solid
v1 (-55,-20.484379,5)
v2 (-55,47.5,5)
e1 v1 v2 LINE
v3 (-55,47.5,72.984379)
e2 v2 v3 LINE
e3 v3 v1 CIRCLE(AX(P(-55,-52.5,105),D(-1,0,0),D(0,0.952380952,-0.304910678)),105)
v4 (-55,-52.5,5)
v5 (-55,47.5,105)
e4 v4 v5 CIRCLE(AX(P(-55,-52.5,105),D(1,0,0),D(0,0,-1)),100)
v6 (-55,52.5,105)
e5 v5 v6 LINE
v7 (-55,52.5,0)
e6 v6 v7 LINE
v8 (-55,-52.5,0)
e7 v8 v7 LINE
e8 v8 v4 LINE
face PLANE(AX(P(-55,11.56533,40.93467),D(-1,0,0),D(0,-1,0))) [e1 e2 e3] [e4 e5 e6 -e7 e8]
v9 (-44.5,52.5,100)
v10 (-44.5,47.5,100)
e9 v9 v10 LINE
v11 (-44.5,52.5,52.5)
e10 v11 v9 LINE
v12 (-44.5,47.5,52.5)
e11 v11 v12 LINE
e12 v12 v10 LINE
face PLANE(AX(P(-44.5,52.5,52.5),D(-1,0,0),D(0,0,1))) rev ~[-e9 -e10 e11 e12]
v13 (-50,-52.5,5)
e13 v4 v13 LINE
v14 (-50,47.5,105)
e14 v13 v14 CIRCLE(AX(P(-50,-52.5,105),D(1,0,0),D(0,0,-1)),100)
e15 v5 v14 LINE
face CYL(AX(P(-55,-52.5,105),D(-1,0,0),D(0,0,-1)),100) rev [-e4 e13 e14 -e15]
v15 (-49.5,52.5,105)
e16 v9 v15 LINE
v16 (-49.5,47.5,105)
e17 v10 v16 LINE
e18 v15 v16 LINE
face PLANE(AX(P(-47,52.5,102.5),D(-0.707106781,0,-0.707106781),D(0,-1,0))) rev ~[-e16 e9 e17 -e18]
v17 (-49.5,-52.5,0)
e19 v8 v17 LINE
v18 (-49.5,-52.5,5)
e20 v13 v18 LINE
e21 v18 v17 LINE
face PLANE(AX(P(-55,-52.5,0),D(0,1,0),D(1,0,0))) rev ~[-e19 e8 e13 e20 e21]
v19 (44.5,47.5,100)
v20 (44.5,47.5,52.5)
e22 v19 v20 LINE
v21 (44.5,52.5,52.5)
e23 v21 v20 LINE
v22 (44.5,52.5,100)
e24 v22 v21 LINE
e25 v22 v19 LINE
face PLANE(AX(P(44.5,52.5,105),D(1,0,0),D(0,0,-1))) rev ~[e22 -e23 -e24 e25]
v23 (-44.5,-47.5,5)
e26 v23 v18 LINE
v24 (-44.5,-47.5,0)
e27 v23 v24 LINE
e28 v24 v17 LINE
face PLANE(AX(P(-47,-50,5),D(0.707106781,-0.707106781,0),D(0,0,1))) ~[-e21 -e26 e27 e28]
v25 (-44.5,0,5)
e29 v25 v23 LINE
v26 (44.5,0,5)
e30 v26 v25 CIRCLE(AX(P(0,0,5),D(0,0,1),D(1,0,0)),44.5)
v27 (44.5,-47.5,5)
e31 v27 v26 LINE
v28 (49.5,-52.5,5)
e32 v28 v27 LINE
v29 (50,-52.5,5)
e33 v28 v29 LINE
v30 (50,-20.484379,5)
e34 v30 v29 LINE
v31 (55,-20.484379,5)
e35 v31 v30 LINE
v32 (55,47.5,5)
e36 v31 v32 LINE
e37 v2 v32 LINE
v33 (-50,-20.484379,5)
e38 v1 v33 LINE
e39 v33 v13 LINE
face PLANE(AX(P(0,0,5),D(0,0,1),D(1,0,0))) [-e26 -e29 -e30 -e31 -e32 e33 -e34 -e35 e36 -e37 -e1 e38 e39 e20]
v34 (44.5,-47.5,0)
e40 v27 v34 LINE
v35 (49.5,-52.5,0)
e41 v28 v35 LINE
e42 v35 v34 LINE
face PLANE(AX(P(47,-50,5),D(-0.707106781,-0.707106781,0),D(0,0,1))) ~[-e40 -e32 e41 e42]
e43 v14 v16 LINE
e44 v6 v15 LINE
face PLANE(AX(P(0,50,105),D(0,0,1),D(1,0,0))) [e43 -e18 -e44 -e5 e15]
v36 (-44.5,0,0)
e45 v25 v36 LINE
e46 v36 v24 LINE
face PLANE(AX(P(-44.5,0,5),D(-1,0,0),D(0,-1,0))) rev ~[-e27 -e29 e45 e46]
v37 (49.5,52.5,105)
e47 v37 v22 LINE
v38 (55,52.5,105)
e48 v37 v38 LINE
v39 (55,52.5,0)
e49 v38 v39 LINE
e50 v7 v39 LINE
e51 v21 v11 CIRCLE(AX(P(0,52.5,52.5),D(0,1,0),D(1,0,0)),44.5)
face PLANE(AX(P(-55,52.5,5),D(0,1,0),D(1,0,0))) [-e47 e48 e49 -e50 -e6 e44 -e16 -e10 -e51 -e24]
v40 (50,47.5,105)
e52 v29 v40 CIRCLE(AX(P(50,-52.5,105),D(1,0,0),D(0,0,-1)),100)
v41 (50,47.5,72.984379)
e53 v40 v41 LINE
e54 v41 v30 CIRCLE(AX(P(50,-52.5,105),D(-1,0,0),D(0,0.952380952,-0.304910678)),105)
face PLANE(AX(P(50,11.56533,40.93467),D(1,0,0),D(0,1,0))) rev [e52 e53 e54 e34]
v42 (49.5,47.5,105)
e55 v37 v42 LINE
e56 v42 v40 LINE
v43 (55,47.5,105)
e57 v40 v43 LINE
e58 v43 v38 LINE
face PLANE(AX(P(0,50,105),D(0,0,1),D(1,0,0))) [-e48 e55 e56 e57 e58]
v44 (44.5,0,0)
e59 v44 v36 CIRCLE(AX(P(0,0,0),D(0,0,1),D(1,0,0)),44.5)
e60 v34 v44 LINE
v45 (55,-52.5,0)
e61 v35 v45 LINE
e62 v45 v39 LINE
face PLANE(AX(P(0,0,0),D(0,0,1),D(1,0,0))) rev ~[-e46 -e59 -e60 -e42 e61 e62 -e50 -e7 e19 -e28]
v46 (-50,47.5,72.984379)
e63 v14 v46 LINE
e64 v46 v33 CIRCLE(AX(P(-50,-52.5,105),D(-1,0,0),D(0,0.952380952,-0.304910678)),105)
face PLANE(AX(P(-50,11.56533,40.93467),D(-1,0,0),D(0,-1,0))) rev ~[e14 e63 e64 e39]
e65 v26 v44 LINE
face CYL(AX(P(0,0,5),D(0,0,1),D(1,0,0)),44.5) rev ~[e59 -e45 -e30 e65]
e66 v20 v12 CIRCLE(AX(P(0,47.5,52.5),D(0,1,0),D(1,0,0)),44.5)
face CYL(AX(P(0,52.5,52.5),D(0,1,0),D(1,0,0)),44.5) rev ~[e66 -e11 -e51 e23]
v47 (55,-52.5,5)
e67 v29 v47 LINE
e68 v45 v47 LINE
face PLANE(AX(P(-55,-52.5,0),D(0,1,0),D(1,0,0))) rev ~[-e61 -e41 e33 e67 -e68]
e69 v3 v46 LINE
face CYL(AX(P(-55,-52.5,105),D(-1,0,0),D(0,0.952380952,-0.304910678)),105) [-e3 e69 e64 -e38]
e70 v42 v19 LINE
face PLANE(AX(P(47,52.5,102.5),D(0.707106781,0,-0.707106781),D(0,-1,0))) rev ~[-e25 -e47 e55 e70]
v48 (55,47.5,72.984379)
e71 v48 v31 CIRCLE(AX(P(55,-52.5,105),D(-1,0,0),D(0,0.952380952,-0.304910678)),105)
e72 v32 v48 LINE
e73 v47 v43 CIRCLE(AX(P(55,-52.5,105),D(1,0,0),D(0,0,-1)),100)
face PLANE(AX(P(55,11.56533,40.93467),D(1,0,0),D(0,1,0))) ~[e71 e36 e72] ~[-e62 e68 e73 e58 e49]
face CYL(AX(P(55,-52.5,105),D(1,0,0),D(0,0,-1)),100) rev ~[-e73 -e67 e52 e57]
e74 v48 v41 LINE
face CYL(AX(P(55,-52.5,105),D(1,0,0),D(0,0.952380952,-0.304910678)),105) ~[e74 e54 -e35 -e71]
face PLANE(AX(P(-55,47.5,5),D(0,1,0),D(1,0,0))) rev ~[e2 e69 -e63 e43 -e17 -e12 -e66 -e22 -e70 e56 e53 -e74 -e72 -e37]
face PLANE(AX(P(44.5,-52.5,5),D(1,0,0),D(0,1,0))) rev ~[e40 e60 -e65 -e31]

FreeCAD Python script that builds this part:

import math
import FreeCAD as App
import Part
import Sketcher
Q = App.Units.Quantity


def edges_at(feature, points):
    """Names of the edges that pass closest to the given points."""
    edges = feature.Shape.Edges
    near = lambda p: min(range(len(edges)), key=lambda i: edges[i].distToShape(Part.Vertex(*p))[0])
    return sorted({f"Edge{near(p) + 1}" for p in points})

doc = App.newDocument("Part")
body = doc.addObject("PartDesign::Body", "Body")

# Sketch on XY plane
sketch1 = body.newObject("Sketcher::SketchObject", "Sketch")
sketch1.AttachmentSupport = (doc.getObject("XY_Plane"), [""])
sketch1.MapMode = "FlatFace"
sketch1.addGeometry([
    Part.LineSegment(App.Vector(-55, 52, 0), App.Vector(-55, -52, 0)),
    Part.LineSegment(App.Vector(-55, -52, 0), App.Vector(55, -52, 0)),
    Part.LineSegment(App.Vector(55, -52, 0), App.Vector(55, 52, 0)),
    Part.LineSegment(App.Vector(55, 52, 0), App.Vector(-55, 52, 0)),
], False)
sketch1.addConstraint([
    Sketcher.Constraint("Coincident", 0, 2, 1, 1),
    Sketcher.Constraint("Coincident", 1, 2, 2, 1),
    Sketcher.Constraint("Coincident", 2, 2, 3, 1),
    Sketcher.Constraint("Coincident", 3, 2, 0, 1),
    Sketcher.Constraint("Vertical", 0),
    Sketcher.Constraint("Horizontal", 1),
    Sketcher.Constraint("Vertical", 2),
    Sketcher.Constraint("Horizontal", 3),
    Sketcher.Constraint("Symmetric", 0, 2, 2, 2, -1, 1),
    Sketcher.Constraint("DistanceX", 1, 1, 1, 2, Q("110 mm")),
    Sketcher.Constraint("DistanceY", 0, 2, 0, 1, Q("105 mm")),
])
pad1 = body.newObject("PartDesign::Pad", "Pad")
pad1.Profile = sketch1
pad1.Length = 5

# Sketch on XY plane
sketch2 = body.newObject("Sketcher::SketchObject", "Sketch001")
sketch2.AttachmentSupport = (doc.getObject("XY_Plane"), [""])
sketch2.MapMode = "FlatFace"
sketch2.AttachmentOffset = App.Placement(App.Vector(0, 0, 5), App.Rotation())
sketch2.addGeometry([
    Part.LineSegment(App.Vector(-55, 52, 0), App.Vector(-55, 48, 0)),
    Part.LineSegment(App.Vector(-55, 48, 0), App.Vector(55, 48, 0)),
    Part.LineSegment(App.Vector(55, 48, 0), App.Vector(55, 52, 0)),
    Part.LineSegment(App.Vector(55, 52, 0), App.Vector(-55, 52, 0)),
], False)
sketch2.addConstraint([
    Sketcher.Constraint("Coincident", 0, 2, 1, 1),
    Sketcher.Constraint("Coincident", 1, 2, 2, 1),
    Sketcher.Constraint("Coincident", 2, 2, 3, 1),
    Sketcher.Constraint("Coincident", 3, 2, 0, 1),
    Sketcher.Constraint("Vertical", 0),
    Sketcher.Constraint("Horizontal", 1),
    Sketcher.Constraint("Vertical", 2),
    Sketcher.Constraint("Horizontal", 3),
    Sketcher.Constraint("DistanceX", 1, 1, 1, 2, Q("110 mm")),
    Sketcher.Constraint("DistanceY", 0, 2, 0, 1, Q("5 mm")),
    Sketcher.Constraint("DistanceX", 0, 2, -1, 1, Q("55 mm")),
    Sketcher.Constraint("DistanceY", -1, 1, 0, 2, Q("47.5 mm")),
])
pad2 = body.newObject("PartDesign::Pad", "Pad001")
pad2.Profile = sketch2
pad2.Length = 100

# Sketch on YZ plane
sketch3 = body.newObject("Sketcher::SketchObject", "Sketch002")
sketch3.AttachmentSupport = (doc.getObject("YZ_Plane"), [""])
sketch3.MapMode = "FlatFace"
sketch3.AttachmentOffset = App.Placement(App.Vector(0, 0, -55), App.Rotation())
sketch3.addGeometry([
    Part.ArcOfCircle(Part.Circle(App.Vector(-52, 105, 0), App.Vector(0, 0, 1), 100), math.radians(-90), math.radians(0)),
    Part.LineSegment(App.Vector(48, 105, 0), App.Vector(48, 73, 0)),
    Part.ArcOfCircle(Part.Circle(App.Vector(-52, 105, 0), App.Vector(0, 0, 1), 105), math.radians(-72), math.radians(-18)),
    Part.LineSegment(App.Vector(-20, 5, 0), App.Vector(-52, 5, 0)),
], False)
sketch3.addConstraint([
    Sketcher.Constraint("Tangent", 0, 2, 1, 1),
    Sketcher.Constraint("Coincident", 1, 2, 2, 2),
    Sketcher.Constraint("Coincident", 2, 1, 3, 1),
    Sketcher.Constraint("Tangent", 3, 2, 0, 1),
    Sketcher.Constraint("Vertical", 1),
    Sketcher.Constraint("Horizontal", 3),
    Sketcher.Constraint("Coincident", 2, 3, 0, 3),
    Sketcher.Constraint("Radius", 0, Q("100 mm")),
    Sketcher.Constraint("Radius", 2, Q("105 mm")),
    Sketcher.Constraint("DistanceY", -1, 1, 0, 3, Q("105 mm")),
    Sketcher.Constraint("DistanceX", 0, 3, -1, 1, Q("52.5 mm")),
])
pad3 = body.newObject("PartDesign::Pad", "Pad002")
pad3.Profile = sketch3
pad3.Length = 5
body2 = doc.addObject("PartDesign::Body", "Body001")
doc.recompute()

body2.BaseFeature = body
doc.recompute()

mirroring = doc.addObject("Part::Mirroring", "Mirroring")
mirroring.Source = body
mirroring.Base = App.Vector(0, 0, 0)
mirroring.Normal = App.Vector(1, 0, 0)
body3 = doc.addObject("PartDesign::Body", "Body002")
body3.BaseFeature = mirroring
boolean = body2.newObject("PartDesign::Boolean", "Boolean")
boolean.Type = "Fuse"
boolean.addObjects([body3])
doc.recompute()

# Sketch on XY plane
sketch4 = body2.newObject("Sketcher::SketchObject", "Sketch003")
sketch4.AttachmentSupport = (doc.getObject("XY_Plane001"), [""])
sketch4.MapMode = "FlatFace"
sketch4.AttachmentOffset = App.Placement(App.Vector(0, 0, 5), App.Rotation())
sketch4.addGeometry([
    Part.LineSegment(App.Vector(44, -52, 0), App.Vector(44, 0, 0)),
    Part.ArcOfCircle(Part.Circle(App.Vector(0, 0, 0), App.Vector(0, 0, 1), 44), math.radians(0), math.radians(180)),
    Part.LineSegment(App.Vector(-44, 0, 0), App.Vector(-44, -52, 0)),
    Part.LineSegment(App.Vector(-44, -52, 0), App.Vector(44, -52, 0)),
], False)
sketch4.addConstraint([
    Sketcher.Constraint("Tangent", 0, 2, 1, 1),
    Sketcher.Constraint("Tangent", 1, 2, 2, 1),
    Sketcher.Constraint("Coincident", 2, 2, 3, 1),
    Sketcher.Constraint("Coincident", 3, 2, 0, 1),
    Sketcher.Constraint("Vertical", 0),
    Sketcher.Constraint("Vertical", 2),
    Sketcher.Constraint("Horizontal", 3),
    Sketcher.Constraint("Coincident", 1, 3, -1, 1),
    Sketcher.Constraint("Radius", 1, Q("44.5 mm")),
    Sketcher.Constraint("DistanceY", 0, 1, 0, 2, Q("52.5 mm")),
])
pocket1 = body2.newObject("PartDesign::Pocket", "Pocket")
pocket1.Profile = sketch4
pocket1.Type = "ThroughAll"

# Sketch on XZ plane
sketch5 = body2.newObject("Sketcher::SketchObject", "Sketch004")
sketch5.AttachmentSupport = (doc.getObject("XZ_Plane001"), [""])
sketch5.MapMode = "FlatFace"
sketch5.AttachmentOffset = App.Placement(App.Vector(0, 0, -52.5), App.Rotation())
sketch5.addGeometry([
    Part.LineSegment(App.Vector(44, 105, 0), App.Vector(44, 52, 0)),
    Part.ArcOfCircle(Part.Circle(App.Vector(0, 52, 0), App.Vector(0, 0, 1), 44), math.radians(180), math.radians(360)),
    Part.LineSegment(App.Vector(-44, 52, 0), App.Vector(-44, 105, 0)),
    Part.LineSegment(App.Vector(-44, 105, 0), App.Vector(44, 105, 0)),
], False)
sketch5.addConstraint([
    Sketcher.Constraint("Tangent", 0, 2, 1, 2),
    Sketcher.Constraint("Tangent", 1, 1, 2, 1),
    Sketcher.Constraint("Coincident", 2, 2, 3, 1),
    Sketcher.Constraint("Coincident", 3, 2, 0, 1),
    Sketcher.Constraint("Vertical", 0),
    Sketcher.Constraint("Vertical", 2),
    Sketcher.Constraint("Horizontal", 3),
    Sketcher.Constraint("PointOnObject", 1, 3, -2),
    Sketcher.Constraint("Radius", 1, Q("44.5 mm")),
    Sketcher.Constraint("DistanceY", 0, 2, 0, 1, Q("52.5 mm")),
    Sketcher.Constraint("DistanceY", -1, 1, 2, 2, Q("105 mm")),
])
pocket2 = body2.newObject("PartDesign::Pocket", "Pocket001")
pocket2.Profile = sketch5
pocket2.Type = "ThroughAll"
pocket2.Reversed = True
doc.recompute()

chamfer = body2.newObject("PartDesign::Chamfer", "Chamfer")
chamfer.Base = (pocket2, edges_at(pocket2, [
    (44.5, 50, 105),
    (-44.5, 50, 105),
    (44.5, -52.5, 2.5),
    (-44.5, -52.5, 2.5),
]))
chamfer.Size = 5
mirroring.Visibility = False

doc.recompute()
